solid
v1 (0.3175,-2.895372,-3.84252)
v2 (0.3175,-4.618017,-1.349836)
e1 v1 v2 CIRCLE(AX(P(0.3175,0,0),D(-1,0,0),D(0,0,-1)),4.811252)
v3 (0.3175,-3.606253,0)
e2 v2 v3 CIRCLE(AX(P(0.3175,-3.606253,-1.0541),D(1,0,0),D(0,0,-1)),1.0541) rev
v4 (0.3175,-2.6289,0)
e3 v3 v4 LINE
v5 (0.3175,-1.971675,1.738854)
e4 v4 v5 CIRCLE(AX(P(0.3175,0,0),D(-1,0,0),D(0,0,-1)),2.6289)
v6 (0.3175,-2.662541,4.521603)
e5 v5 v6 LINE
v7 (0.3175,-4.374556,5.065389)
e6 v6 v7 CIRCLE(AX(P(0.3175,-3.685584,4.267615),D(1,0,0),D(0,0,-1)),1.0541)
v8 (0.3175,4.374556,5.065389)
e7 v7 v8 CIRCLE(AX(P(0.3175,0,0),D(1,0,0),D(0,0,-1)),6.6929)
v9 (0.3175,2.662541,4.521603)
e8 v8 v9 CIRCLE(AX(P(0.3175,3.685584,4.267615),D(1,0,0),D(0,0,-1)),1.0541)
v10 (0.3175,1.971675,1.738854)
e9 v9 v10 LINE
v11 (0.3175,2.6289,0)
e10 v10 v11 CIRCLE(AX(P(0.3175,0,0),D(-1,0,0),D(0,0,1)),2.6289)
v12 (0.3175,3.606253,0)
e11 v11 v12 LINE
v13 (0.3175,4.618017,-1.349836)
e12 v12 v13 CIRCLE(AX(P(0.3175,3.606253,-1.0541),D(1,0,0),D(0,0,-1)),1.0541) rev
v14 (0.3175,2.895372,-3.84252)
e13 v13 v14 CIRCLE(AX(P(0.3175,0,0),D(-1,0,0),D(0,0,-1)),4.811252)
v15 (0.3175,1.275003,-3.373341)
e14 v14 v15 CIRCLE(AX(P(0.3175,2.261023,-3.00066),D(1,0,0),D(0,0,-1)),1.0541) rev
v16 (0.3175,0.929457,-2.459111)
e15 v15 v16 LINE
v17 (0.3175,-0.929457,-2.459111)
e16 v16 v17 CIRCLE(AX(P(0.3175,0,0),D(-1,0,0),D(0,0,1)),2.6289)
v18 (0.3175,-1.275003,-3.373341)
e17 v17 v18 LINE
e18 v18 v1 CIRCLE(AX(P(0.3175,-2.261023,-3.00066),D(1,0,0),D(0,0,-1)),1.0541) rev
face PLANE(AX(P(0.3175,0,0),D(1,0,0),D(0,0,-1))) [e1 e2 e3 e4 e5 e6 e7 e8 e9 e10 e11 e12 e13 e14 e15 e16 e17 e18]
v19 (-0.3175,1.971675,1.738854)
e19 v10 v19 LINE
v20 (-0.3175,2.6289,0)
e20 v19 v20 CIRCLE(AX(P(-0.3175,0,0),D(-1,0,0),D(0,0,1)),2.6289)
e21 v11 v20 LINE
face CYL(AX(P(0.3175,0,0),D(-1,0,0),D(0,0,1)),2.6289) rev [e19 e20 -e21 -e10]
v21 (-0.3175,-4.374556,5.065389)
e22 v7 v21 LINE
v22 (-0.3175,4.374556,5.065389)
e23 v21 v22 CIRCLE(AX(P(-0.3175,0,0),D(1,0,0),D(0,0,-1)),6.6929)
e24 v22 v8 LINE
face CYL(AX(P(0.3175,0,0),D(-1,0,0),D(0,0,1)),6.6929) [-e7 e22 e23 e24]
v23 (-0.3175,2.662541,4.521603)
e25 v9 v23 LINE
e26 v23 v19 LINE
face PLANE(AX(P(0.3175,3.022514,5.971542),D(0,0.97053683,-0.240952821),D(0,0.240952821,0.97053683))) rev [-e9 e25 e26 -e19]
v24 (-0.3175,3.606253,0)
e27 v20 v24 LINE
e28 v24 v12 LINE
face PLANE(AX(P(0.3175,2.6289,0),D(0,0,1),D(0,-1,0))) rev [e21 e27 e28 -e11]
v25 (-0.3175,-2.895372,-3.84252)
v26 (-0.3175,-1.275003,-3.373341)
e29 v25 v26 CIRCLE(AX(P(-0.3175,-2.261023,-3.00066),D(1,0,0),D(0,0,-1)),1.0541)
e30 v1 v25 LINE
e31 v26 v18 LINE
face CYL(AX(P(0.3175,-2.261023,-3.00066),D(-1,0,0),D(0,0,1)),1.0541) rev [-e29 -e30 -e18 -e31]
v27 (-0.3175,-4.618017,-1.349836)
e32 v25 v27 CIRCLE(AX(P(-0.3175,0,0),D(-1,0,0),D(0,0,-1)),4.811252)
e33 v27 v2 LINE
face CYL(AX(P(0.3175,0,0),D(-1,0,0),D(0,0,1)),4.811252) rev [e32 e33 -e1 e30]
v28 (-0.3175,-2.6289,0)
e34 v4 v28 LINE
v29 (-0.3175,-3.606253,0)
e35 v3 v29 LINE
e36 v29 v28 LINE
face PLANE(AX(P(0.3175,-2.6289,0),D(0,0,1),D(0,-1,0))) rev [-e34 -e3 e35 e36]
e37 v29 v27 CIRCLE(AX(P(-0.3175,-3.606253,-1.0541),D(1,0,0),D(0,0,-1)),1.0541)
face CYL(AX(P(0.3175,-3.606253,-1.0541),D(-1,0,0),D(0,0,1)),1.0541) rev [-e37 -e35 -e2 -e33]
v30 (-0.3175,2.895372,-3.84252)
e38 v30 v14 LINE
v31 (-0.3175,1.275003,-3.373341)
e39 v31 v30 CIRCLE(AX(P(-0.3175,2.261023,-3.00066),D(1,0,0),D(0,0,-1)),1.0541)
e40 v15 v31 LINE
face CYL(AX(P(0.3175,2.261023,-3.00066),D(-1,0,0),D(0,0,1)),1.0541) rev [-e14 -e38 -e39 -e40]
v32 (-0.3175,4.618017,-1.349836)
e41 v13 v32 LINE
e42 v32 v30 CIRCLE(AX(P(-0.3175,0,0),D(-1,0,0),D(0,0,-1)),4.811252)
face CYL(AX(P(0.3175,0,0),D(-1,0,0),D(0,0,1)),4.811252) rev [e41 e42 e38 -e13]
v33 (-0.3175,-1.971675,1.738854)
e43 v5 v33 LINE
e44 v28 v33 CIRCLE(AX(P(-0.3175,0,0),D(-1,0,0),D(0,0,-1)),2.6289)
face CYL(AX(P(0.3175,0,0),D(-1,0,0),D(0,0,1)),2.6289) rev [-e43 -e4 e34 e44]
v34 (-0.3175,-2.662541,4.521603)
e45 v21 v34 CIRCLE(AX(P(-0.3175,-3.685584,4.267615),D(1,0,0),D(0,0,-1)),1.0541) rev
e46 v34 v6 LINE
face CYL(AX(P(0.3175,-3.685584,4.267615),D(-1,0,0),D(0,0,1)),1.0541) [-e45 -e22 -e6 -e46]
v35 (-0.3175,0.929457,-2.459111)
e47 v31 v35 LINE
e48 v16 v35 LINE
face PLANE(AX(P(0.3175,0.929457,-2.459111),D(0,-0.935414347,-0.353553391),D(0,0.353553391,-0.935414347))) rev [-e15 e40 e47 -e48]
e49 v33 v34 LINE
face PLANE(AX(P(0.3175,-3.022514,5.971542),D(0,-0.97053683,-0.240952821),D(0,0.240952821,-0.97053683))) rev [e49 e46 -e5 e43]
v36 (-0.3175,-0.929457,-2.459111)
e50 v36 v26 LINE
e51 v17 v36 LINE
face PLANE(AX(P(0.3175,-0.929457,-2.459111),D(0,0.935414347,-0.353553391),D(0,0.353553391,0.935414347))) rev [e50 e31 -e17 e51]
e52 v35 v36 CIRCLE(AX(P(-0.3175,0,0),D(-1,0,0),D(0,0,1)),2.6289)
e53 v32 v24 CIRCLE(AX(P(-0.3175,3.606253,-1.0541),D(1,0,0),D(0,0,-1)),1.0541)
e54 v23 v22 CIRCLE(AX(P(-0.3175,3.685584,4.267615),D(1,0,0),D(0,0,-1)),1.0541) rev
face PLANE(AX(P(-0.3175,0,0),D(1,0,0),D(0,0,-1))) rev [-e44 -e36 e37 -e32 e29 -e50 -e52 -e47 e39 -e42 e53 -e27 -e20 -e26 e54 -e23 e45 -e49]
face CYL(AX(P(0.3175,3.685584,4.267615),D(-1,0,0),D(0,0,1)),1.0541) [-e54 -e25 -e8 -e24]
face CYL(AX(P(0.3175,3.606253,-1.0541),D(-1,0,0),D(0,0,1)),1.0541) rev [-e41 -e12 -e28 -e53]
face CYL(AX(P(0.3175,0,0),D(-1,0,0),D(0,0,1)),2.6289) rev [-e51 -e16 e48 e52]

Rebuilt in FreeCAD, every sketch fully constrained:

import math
import FreeCAD as App
import Part
import Sketcher
Q = App.Units.Quantity


def edges_at(feature, points):
    """Names of the edges that pass closest to the given points."""
    edges = feature.Shape.Edges
    near = lambda p: min(range(len(edges)), key=lambda i: edges[i].distToShape(Part.Vertex(*p))[0])
    return sorted({f"Edge{near(p) + 1}" for p in points})

doc = App.newDocument("Part")
params = doc.addObject("Spreadsheet::Sheet", "Params")
for row, (alias, value) in enumerate([
    ("pad1_length", "0.025 in"),
    ("fillet_radius", "0.0415 in"),
], start=1):
    params.set(f"A{row}", alias)
    params.set(f"B{row}", "=" + value)
    params.setAlias(f"B{row}", alias)

body = doc.addObject("PartDesign::Body", "Body")

# Sketch on YZ plane
sketch1 = body.newObject("Sketcher::SketchObject", "Sketch")
sketch1.AttachmentSupport = (doc.getObject("YZ_Plane"), [""])
sketch1.MapMode = "FlatFace"
sketch1.addGeometry([
    Part.LineSegment(App.Vector(-2, 1.7, 0), App.Vector(-3, 6, 0)),  # 0
    Part.ArcOfCircle(Part.Circle(App.Vector(0, 0, 0), App.Vector(0, 0, 1), 6.7), math.radians(117), math.radians(423)),  # 1
    Part.LineSegment(App.Vector(3, 6, 0), App.Vector(2, 1.7, 0)),  # 2
    Part.ArcOfCircle(Part.Circle(App.Vector(0, 0, 0), App.Vector(0, 0, 1), 2.6), math.radians(0), math.radians(41)),  # 3
    Part.LineSegment(App.Vector(2.6, 0, 0), App.Vector(4.8, 0, 0)),  # 4
    Part.ArcOfCircle(Part.Circle(App.Vector(0, 0, 0), App.Vector(0, 0, 1), 4.8), math.radians(-69), math.radians(0)),  # 5
    Part.LineSegment(App.Vector(1.7, -4.5, 0), App.Vector(0.9, -2.5, 0)),  # 6
    Part.ArcOfCircle(Part.Circle(App.Vector(0, 0, 0), App.Vector(0, 0, 1), 2.6), math.radians(-111), math.radians(-69)),  # 7
    Part.LineSegment(App.Vector(-0.9, -2.5, 0), App.Vector(-1.7, -4.5, 0)),  # 8
    Part.ArcOfCircle(Part.Circle(App.Vector(0, 0, 0), App.Vector(0, 0, 1), 4.8), math.radians(180), math.radians(249)),  # 9
    Part.LineSegment(App.Vector(-4.8, 0, 0), App.Vector(-2.6, 0, 0)),  # 10
    Part.ArcOfCircle(Part.Circle(App.Vector(0, 0, 0), App.Vector(0, 0, 1), 2.6), math.radians(139), math.radians(180)),  # 11
], False)
sketch1.addConstraint([
    Sketcher.Constraint("Coincident", 0, 2, 1, 1),
    Sketcher.Constraint("Coincident", 1, 2, 2, 1),
    Sketcher.Constraint("Coincident", 2, 2, 3, 2),
    Sketcher.Constraint("Coincident", 3, 1, 4, 1),
    Sketcher.Constraint("Coincident", 4, 2, 5, 2),
    Sketcher.Constraint("Coincident", 5, 1, 6, 1),
    Sketcher.Constraint("Coincident", 6, 2, 7, 2),
    Sketcher.Constraint("Coincident", 7, 1, 8, 1),
    Sketcher.Constraint("Coincident", 8, 2, 9, 2),
    Sketcher.Constraint("Coincident", 9, 1, 10, 1),
    Sketcher.Constraint("Coincident", 10, 2, 11, 2),
    Sketcher.Constraint("Coincident", 11, 1, 0, 1),
    Sketcher.Constraint("Horizontal", 4),
    Sketcher.Constraint("Horizontal", 10),
    Sketcher.Constraint("Coincident", 1, 3, -1, 1),
    Sketcher.Constraint("Coincident", 3, 3, -1, 1),
    Sketcher.Constraint("Coincident", 5, 3, -1, 1),
    Sketcher.Constraint("Coincident", 7, 3, -1, 1),
    Sketcher.Constraint("Coincident", 9, 3, -1, 1),
    Sketcher.Constraint("Coincident", 11, 3, -1, 1),
    Sketcher.Constraint("Equal", 3, 7),
    Sketcher.Constraint("Equal", 5, 9),
    Sketcher.Constraint("Equal", 7, 11),
    Sketcher.Constraint("PointOnObject", 3, 1, -1),
    Sketcher.Constraint("PointOnObject", 9, 1, -1),
    Sketcher.Constraint("Horizontal", 0, 2, 1, 2),
    Sketcher.Constraint("Horizontal", 6, 2, 7, 1),
    Sketcher.Constraint("Horizontal", 5, 1, 8, 2),
    Sketcher.Constraint("Horizontal", 2, 2, 11, 1),
    Sketcher.Constraint("Radius", 1, Q("0.2635 in")),
    Sketcher.Constraint("Radius", 3, Q("0.1035 in")),
    Sketcher.Constraint("Radius", 5, Q("4.811252 mm")),
    Sketcher.Constraint("Distance", 0, Q("0.1717001 in")),
    Sketcher.Constraint("DistanceY", -1, 1, 0, 2, Q("0.2351001 in")),
    Sketcher.Constraint("DistanceY", 6, 2, -1, 1, Q("2.459111 mm")),
    Sketcher.Constraint("DistanceX", 8, 2, 6, 2, Q("2.630491 mm")),
])
pad1 = body.newObject("PartDesign::Pad", "Pad")
pad1.Profile = sketch1
pad1.setExpression("Length", "Params.pad1_length")
pad1.Midplane = True
doc.recompute()

fillet = body.newObject("PartDesign::Fillet", "Fillet")
fillet.Base = (pad1, edges_at(pad1, [
    (0, -3.023, 5.972),
    (0, -4.811, 0),
    (0, -1.701, -4.501),
    (0, 1.701, -4.501),
    (0, 4.811, 0),
    (0, 3.023, 5.972),
]))
fillet.setExpression("Radius", "Params.fillet_radius")

doc.recompute()
